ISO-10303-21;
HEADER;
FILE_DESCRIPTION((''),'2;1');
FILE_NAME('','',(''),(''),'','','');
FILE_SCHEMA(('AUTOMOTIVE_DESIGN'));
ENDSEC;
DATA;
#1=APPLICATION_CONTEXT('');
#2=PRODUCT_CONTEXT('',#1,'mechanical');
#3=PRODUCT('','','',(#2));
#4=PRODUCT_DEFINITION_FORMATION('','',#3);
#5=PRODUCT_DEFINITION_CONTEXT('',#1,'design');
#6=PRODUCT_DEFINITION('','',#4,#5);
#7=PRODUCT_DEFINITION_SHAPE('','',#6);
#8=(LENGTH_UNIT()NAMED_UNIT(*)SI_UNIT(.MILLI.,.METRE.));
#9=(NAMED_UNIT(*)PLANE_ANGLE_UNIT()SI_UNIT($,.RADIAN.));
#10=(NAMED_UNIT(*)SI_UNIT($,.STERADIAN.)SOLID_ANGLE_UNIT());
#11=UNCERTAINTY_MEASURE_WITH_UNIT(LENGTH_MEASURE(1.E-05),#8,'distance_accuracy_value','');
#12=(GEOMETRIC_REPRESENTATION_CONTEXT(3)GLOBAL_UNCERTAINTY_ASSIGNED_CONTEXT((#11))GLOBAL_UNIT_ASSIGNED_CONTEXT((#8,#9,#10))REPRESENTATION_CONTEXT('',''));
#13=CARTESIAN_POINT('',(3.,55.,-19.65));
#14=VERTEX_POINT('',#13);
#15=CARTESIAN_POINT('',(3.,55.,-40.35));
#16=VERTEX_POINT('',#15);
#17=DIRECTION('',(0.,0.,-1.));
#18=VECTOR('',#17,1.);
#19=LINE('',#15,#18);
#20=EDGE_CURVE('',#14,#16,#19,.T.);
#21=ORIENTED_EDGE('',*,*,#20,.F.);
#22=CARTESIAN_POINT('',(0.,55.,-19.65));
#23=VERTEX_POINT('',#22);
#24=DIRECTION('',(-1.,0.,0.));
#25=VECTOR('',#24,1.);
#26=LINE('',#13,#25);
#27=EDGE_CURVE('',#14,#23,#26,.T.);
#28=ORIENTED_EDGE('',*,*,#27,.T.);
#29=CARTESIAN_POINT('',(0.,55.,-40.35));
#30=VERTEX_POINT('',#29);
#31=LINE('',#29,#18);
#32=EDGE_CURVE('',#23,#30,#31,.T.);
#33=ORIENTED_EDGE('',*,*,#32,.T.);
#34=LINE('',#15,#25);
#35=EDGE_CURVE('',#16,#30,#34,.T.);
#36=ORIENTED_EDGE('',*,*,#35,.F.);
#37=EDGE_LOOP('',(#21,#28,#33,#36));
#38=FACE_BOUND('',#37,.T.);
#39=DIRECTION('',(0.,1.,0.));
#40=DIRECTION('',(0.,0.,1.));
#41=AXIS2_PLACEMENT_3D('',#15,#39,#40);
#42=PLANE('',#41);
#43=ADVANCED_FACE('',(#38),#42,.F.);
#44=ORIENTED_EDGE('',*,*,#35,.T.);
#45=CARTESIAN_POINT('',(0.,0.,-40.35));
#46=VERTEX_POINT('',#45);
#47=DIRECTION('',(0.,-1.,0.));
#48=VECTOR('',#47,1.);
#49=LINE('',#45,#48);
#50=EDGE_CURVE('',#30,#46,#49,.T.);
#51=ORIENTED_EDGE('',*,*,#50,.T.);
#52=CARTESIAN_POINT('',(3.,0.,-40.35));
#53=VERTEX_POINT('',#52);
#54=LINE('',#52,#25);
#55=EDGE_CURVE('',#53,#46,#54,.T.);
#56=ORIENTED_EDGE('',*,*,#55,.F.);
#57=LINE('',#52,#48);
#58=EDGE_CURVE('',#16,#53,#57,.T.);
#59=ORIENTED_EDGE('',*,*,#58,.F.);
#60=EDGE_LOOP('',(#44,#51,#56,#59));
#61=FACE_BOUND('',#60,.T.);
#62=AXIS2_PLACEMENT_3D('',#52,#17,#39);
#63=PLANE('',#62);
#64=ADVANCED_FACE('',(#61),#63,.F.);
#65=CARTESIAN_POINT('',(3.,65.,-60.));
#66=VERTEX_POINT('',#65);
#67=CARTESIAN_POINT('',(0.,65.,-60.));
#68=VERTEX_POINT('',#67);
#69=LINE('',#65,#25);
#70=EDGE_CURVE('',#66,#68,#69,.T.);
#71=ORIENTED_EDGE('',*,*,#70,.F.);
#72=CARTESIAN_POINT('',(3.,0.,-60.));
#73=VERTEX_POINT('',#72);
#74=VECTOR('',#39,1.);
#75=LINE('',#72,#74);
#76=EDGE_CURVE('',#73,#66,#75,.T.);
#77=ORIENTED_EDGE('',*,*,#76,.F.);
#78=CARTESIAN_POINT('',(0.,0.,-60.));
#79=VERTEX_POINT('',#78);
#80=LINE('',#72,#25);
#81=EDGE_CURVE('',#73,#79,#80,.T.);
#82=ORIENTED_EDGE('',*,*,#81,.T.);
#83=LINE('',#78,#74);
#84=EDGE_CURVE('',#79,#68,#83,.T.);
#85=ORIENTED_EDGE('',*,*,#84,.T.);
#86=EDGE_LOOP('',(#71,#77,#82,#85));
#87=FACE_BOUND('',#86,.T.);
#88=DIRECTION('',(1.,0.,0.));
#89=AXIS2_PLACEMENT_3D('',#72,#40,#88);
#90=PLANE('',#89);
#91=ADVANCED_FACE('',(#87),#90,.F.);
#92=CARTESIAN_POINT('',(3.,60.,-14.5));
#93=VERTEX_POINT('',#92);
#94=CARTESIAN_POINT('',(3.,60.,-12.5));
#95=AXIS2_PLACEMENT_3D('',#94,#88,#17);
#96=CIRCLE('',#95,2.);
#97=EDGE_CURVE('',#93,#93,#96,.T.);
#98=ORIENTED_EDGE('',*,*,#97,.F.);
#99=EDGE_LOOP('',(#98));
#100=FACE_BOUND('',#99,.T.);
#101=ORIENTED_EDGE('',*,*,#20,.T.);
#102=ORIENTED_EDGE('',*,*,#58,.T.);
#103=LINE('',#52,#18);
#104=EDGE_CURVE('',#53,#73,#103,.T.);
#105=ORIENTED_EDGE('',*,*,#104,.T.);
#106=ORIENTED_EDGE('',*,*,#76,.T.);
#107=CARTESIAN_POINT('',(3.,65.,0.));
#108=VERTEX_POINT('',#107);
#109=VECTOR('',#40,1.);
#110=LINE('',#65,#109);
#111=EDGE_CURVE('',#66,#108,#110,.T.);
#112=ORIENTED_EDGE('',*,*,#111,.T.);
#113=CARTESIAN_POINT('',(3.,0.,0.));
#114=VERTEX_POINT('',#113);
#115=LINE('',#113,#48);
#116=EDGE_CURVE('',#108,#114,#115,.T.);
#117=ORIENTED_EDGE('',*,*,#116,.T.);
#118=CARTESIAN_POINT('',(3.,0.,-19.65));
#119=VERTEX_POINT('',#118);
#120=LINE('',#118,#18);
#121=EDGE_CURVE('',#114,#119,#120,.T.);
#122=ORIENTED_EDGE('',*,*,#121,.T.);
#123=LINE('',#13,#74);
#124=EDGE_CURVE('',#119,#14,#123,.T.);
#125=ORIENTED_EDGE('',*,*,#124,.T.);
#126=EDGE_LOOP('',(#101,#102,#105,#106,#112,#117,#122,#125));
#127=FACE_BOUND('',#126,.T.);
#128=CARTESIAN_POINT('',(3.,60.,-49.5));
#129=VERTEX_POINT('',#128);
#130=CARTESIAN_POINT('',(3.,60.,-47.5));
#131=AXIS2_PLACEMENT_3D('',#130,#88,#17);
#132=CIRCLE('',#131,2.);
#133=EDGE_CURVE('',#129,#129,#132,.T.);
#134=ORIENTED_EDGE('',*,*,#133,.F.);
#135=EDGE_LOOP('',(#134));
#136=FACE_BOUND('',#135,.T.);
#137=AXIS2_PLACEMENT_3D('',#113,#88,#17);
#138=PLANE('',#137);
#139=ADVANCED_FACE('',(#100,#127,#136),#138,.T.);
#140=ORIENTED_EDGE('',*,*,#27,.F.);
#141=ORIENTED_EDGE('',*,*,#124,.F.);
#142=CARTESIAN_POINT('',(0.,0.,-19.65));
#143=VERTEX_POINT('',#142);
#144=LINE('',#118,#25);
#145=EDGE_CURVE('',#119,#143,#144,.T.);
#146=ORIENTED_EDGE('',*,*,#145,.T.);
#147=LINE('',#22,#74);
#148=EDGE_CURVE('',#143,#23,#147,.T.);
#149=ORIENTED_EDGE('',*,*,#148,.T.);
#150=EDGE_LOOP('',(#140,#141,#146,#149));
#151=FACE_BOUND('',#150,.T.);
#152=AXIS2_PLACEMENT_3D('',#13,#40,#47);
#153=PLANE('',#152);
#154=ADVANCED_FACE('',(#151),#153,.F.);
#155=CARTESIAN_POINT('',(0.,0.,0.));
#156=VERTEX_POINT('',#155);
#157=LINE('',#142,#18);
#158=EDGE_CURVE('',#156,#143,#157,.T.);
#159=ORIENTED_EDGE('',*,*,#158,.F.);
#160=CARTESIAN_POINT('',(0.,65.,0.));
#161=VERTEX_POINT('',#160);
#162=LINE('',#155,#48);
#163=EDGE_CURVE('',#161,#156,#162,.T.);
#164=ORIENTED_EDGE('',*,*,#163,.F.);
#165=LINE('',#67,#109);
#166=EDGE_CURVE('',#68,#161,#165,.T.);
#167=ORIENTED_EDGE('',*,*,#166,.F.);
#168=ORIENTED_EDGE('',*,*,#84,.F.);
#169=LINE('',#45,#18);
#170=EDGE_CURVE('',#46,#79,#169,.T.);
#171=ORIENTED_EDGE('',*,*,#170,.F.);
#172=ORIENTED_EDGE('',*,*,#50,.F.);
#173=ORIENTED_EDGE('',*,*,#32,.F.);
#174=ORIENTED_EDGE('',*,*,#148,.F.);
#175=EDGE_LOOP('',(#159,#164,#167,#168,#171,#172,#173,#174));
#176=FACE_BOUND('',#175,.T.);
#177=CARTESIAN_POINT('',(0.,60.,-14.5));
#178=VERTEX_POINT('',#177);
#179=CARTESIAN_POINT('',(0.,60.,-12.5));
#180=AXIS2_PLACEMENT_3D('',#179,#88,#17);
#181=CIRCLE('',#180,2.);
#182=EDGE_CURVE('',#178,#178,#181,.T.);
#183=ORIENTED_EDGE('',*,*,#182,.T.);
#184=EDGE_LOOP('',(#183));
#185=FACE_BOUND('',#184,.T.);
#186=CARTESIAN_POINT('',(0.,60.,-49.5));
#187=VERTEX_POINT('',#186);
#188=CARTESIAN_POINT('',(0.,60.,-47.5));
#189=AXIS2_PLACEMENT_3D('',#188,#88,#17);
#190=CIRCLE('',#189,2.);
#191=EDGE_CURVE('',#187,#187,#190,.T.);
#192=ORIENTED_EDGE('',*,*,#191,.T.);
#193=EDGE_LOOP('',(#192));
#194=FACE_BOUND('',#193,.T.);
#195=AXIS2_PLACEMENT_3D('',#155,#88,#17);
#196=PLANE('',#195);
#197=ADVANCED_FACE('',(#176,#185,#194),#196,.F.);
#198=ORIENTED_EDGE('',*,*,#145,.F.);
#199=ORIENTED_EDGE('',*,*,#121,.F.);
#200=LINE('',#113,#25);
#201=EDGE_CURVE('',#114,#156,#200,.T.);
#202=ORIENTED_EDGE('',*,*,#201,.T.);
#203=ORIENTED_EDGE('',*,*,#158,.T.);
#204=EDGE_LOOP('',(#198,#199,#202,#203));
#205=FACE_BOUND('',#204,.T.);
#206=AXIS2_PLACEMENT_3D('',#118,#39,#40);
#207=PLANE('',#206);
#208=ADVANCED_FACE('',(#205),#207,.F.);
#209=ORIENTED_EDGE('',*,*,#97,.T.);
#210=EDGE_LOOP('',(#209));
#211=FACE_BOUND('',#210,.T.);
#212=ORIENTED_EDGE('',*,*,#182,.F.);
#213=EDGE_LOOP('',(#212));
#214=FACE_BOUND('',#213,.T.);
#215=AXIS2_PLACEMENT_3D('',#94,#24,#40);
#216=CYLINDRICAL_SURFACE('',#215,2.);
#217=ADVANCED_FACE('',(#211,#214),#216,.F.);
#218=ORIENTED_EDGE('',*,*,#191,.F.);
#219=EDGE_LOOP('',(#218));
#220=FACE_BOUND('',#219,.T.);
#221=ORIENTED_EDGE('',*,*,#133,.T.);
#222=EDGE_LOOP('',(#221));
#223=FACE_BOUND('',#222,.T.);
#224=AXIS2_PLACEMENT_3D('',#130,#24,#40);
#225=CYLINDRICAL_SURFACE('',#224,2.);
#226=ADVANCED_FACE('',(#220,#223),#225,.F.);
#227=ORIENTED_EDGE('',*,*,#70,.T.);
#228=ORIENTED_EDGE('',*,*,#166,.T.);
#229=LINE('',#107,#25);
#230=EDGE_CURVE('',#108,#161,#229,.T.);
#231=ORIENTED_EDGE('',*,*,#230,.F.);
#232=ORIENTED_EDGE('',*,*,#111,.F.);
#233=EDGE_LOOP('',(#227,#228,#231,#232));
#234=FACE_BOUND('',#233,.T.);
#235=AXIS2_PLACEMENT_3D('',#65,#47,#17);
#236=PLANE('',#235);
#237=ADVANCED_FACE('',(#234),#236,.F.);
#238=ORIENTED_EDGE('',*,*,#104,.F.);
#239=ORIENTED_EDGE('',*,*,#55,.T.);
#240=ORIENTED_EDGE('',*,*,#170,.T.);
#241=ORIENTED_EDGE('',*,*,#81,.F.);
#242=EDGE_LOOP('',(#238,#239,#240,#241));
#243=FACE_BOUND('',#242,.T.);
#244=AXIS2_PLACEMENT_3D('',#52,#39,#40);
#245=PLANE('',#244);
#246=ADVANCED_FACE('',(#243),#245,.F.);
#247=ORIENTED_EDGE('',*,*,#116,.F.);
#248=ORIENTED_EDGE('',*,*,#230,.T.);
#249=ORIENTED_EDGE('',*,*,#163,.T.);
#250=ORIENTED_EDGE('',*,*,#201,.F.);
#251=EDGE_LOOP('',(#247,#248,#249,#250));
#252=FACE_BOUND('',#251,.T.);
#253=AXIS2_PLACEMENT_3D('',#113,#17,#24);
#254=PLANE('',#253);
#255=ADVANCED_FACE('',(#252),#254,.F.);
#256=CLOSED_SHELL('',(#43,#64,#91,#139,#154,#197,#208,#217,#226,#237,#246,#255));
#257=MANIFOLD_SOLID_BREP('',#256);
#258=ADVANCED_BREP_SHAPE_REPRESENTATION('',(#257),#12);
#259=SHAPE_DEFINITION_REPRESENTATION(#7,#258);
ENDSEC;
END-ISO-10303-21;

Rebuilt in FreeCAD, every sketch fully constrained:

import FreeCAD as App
import Part
import Sketcher
from FreeCAD import Vector


def add_polygon(sketch, points):
    """Adds a closed chain of lines whose ends are joined by coincident constraints."""
    first, n = sketch.GeometryCount, len(points)
    for a, b in zip(points, points[1:] + points[:1]):
        sketch.addGeometry(Part.LineSegment(App.Vector(*a, 0), App.Vector(*b, 0)), False)
    for i in range(n):
        sketch.addConstraint(Sketcher.Constraint("Coincident", first + i, 2, first + (i + 1) % n, 1))

doc = App.newDocument("Part")
body = doc.addObject("PartDesign::Body", "Body")

# Sketch on YZ plane
sketch1 = body.newObject("Sketcher::SketchObject", "Sketch")
sketch1.AttachmentSupport = (doc.getObject("YZ_Plane"), [""])
sketch1.MapMode = "FlatFace"
add_polygon(sketch1, [(65, -60), (65, 0), (0, 0), (0, -19.6), (55, -19.6), (55, -40.4), (0, -40.4), (0, -60)])  # lines 0-7
sketch1.addGeometry(Part.Circle(Vector(60, -12.5, 0), Vector(0, 0, 1), 2), False)  # 8
sketch1.addGeometry(Part.Circle(Vector(60, -47.5, 0), Vector(0, 0, 1), 2), False)  # 9
sketch1.addConstraint([
    Sketcher.Constraint("Vertical", 0),
    Sketcher.Constraint("Horizontal", 1),
    Sketcher.Constraint("Vertical", 2),
    Sketcher.Constraint("Horizontal", 3),
    Sketcher.Constraint("Vertical", 4),
    Sketcher.Constraint("Horizontal", 5),
    Sketcher.Constraint("Vertical", 6),
    Sketcher.Constraint("Horizontal", 7),
    Sketcher.Constraint("Coincident", 1, 2, -1, 1),
    Sketcher.Constraint("Equal", 8, 9),
    Sketcher.Constraint("PointOnObject", 5, 2, -2),
    Sketcher.Constraint("Vertical", 8, 3, 9, 3),
    Sketcher.Constraint("Equal", 2, 6),
    Sketcher.Constraint("Diameter", 8, 4.0),
    Sketcher.Constraint("DistanceX", 1, 2, 1, 1, 65.0),
    Sketcher.Constraint("DistanceX", 3, 1, 3, 2, 55.0),
    Sketcher.Constraint("DistanceY", 0, 1, 0, 2, 60.0),
    Sketcher.Constraint("DistanceY", 4, 2, 4, 1, 20.7),
    Sketcher.Constraint("DistanceX", -1, 1, 8, 3, 60.0),
    Sketcher.Constraint("DistanceY", 9, 3, 8, 3, 35.0),
    Sketcher.Constraint("DistanceY", 8, 3, -1, 1, 12.5),
])
pad1 = body.newObject("PartDesign::Pad", "Pad")
pad1.Profile = sketch1
pad1.Length = 3

doc.recompute()
